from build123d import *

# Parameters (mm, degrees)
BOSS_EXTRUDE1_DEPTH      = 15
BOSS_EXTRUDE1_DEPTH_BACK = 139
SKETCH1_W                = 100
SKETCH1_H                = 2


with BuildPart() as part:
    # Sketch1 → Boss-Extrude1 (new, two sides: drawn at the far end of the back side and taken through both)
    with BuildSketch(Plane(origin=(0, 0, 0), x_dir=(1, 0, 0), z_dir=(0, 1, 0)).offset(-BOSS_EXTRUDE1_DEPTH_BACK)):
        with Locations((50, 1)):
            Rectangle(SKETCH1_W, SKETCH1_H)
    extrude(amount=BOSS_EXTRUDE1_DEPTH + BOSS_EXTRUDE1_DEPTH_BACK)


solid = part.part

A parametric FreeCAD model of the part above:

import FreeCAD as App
import Part
import Sketcher

V = App.Vector
Q = App.Units.Quantity


def add_polygon(sketch, points):
    """Adds a closed chain of lines whose ends are joined by coincident constraints."""
    first, n = sketch.GeometryCount, len(points)
    for a, b in zip(points, points[1:] + points[:1]):
        sketch.addGeometry(Part.LineSegment(App.Vector(*a, 0), App.Vector(*b, 0)), False)
    for i in range(n):
        sketch.addConstraint(Sketcher.Constraint("Coincident", first + i, 2, first + (i + 1) % n, 1))

doc = App.newDocument("Part")
body = doc.addObject("PartDesign::Body", "Body")

sketch1 = body.newObject("Sketcher::SketchObject", "Sketch")
sketch1.AttachmentSupport = (doc.getObject("XZ_Plane"), [""])
sketch1.MapMode = "FlatFace"
add_polygon(sketch1, [(0, -2), (0, 0), (100, 0), (100, -2)])
sketch1.addConstraint(Sketcher.Constraint("Vertical", 0))
sketch1.addConstraint(Sketcher.Constraint("Horizontal", 1))
sketch1.addConstraint(Sketcher.Constraint("Vertical", 2))
sketch1.addConstraint(Sketcher.Constraint("Horizontal", 3))
sketch1.addConstraint(Sketcher.Constraint("Coincident", 0, 2, -1, 1))
sketch1.addConstraint(Sketcher.Constraint("DistanceX", 1, 1, 1, 2, Q("100 mm")))
sketch1.addConstraint(Sketcher.Constraint("DistanceY", 0, 1, 0, 2, Q("2 mm")))
pad1 = body.newObject("PartDesign::Pad", "Pad")
pad1.Profile = sketch1
pad1.Type = "TwoLengths"
pad1.Length = 15
pad1.Length2 = 139
pad1.Reversed = True

doc.recompute()
